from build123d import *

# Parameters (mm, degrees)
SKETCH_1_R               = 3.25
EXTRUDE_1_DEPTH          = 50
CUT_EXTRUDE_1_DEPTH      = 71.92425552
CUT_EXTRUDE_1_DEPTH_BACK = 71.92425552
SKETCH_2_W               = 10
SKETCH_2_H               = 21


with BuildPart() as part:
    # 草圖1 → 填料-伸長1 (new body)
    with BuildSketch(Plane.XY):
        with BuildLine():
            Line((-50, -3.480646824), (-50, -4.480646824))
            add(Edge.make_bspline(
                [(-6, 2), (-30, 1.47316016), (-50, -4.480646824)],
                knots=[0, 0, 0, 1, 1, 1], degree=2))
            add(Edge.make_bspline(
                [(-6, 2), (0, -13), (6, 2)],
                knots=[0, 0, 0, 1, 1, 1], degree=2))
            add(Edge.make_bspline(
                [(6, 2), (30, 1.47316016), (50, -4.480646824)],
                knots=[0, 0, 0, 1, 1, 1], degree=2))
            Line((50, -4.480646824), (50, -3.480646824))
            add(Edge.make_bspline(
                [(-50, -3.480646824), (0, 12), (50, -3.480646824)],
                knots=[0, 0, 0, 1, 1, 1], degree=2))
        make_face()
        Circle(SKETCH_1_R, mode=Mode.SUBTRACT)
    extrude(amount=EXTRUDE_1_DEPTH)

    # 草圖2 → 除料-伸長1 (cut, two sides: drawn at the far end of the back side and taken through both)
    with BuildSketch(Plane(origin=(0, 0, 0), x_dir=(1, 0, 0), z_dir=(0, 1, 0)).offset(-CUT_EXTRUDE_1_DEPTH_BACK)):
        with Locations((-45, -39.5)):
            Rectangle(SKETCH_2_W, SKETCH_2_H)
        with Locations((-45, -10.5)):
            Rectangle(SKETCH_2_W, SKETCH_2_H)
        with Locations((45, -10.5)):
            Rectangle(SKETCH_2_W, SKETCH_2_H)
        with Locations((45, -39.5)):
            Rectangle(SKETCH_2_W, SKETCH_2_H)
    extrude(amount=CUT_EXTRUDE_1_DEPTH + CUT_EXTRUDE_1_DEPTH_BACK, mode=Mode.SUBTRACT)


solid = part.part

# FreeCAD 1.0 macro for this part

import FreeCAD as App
import Part
import Sketcher

doc = App.newDocument("Part")
body = doc.addObject("PartDesign::Body", "Body")

# Sketch on XY plane
sketch1 = body.newObject("Sketcher::SketchObject", "Sketch")
sketch1.AttachmentSupport = (doc.getObject("XY_Plane"), [""])
sketch1.MapMode = "FlatFace"
sketch1.addGeometry(Part.LineSegment(App.Vector(-50, -3.480647, 0), App.Vector(-50, -4.480647, 0)), False)
sketch1.addGeometry(Part.BSplineCurve([App.Vector(-6, 2, 0), App.Vector(-30, 1.47316, 0), App.Vector(-50, -4.480647, 0)], [3, 3], [0, 1], False, 2, [1, 1, 1], False), False)
sketch1.addGeometry(Part.BSplineCurve([App.Vector(-6, 2, 0), App.Vector(0, -13, 0), App.Vector(6, 2, 0)], [3, 3], [0, 1], False, 2, [1, 1, 1], False), False)
sketch1.addGeometry(Part.BSplineCurve([App.Vector(6, 2, 0), App.Vector(30, 1.47316, 0), App.Vector(50, -4.480647, 0)], [3, 3], [0, 1], False, 2, [1, 1, 1], False), False)
sketch1.addGeometry(Part.LineSegment(App.Vector(50, -4.480647, 0), App.Vector(50, -3.480647, 0)), False)
sketch1.addGeometry(Part.BSplineCurve([App.Vector(-50, -3.480647, 0), App.Vector(0, 12, 0), App.Vector(50, -3.480647, 0)], [3, 3], [0, 1], False, 2, [1, 1, 1], False), False)
sketch1.addGeometry(Part.Circle(App.Vector(0, 0, 0), App.Vector(0, 0, 1), 3.25), False)
sketch1.addConstraint(Sketcher.Constraint("Block", 1))
sketch1.addConstraint(Sketcher.Constraint("Block", 2))
sketch1.addConstraint(Sketcher.Constraint("Block", 3))
sketch1.addConstraint(Sketcher.Constraint("Block", 5))
sketch1.addConstraint(Sketcher.Constraint("Coincident", 0, 2, 1, 2))
sketch1.addConstraint(Sketcher.Constraint("Coincident", 3, 2, 4, 1))
sketch1.addConstraint(Sketcher.Constraint("Coincident", 4, 2, 5, 2))
sketch1.addConstraint(Sketcher.Constraint("Coincident", 5, 1, 0, 1))
sketch1.addConstraint(Sketcher.Constraint("Coincident", 6, 3, -1, 1))
sketch1.addConstraint(Sketcher.Constraint("Diameter", 6, 6.5))
pad1 = body.newObject("PartDesign::Pad", "Pad")
pad1.Profile = sketch1
pad1.Length = 50

# Sketch on XZ plane
sketch2 = body.newObject("Sketcher::SketchObject", "Sketch001")
sketch2.AttachmentSupport = (doc.getObject("XZ_Plane"), [""])
sketch2.MapMode = "FlatFace"
sketch2.addGeometry(Part.LineSegment(App.Vector(-50, 29, 0), App.Vector(-50, 50, 0)), False)
sketch2.addGeometry(Part.LineSegment(App.Vector(-50, 50, 0), App.Vector(-40, 50, 0)), False)
sketch2.addGeometry(Part.LineSegment(App.Vector(-40, 50, 0), App.Vector(-40, 29, 0)), False)
sketch2.addGeometry(Part.LineSegment(App.Vector(-40, 29, 0), App.Vector(-50, 29, 0)), False)
sketch2.addGeometry(Part.LineSegment(App.Vector(-50, 0, 0), App.Vector(-50, 21, 0)), False)
sketch2.addGeometry(Part.LineSegment(App.Vector(-50, 21, 0), App.Vector(-40, 21, 0)), False)
sketch2.addGeometry(Part.LineSegment(App.Vector(-40, 21, 0), App.Vector(-40, 0, 0)), False)
sketch2.addGeometry(Part.LineSegment(App.Vector(-40, 0, 0), App.Vector(-50, 0, 0)), False)
sketch2.addGeometry(Part.LineSegment(App.Vector(40, 0, 0), App.Vector(40, 21, 0)), False)
sketch2.addGeometry(Part.LineSegment(App.Vector(40, 21, 0), App.Vector(50, 21, 0)), False)
sketch2.addGeometry(Part.LineSegment(App.Vector(50, 21, 0), App.Vector(50, 0, 0)), False)
sketch2.addGeometry(Part.LineSegment(App.Vector(50, 0, 0), App.Vector(40, 0, 0)), False)
sketch2.addGeometry(Part.LineSegment(App.Vector(40, 29, 0), App.Vector(40, 50, 0)), False)
sketch2.addGeometry(Part.LineSegment(App.Vector(40, 50, 0), App.Vector(50, 50, 0)), False)
sketch2.addGeometry(Part.LineSegment(App.Vector(50, 50, 0), App.Vector(50, 29, 0)), False)
sketch2.addGeometry(Part.LineSegment(App.Vector(50, 29, 0), App.Vector(40, 29, 0)), False)
sketch2.addConstraint(Sketcher.Constraint("Coincident", 0, 2, 1, 1))
sketch2.addConstraint(Sketcher.Constraint("Coincident", 1, 2, 2, 1))
sketch2.addConstraint(Sketcher.Constraint("Coincident", 2, 2, 3, 1))
sketch2.addConstraint(Sketcher.Constraint("Coincident", 3, 2, 0, 1))
sketch2.addConstraint(Sketcher.Constraint("Coincident", 4, 2, 5, 1))
sketch2.addConstraint(Sketcher.Constraint("Coincident", 5, 2, 6, 1))
sketch2.addConstraint(Sketcher.Constraint("Coincident", 6, 2, 7, 1))
sketch2.addConstraint(Sketcher.Constraint("Coincident", 7, 2, 4, 1))
sketch2.addConstraint(Sketcher.Constraint("Coincident", 8, 2, 9, 1))
sketch2.addConstraint(Sketcher.Constraint("Coincident", 9, 2, 10, 1))
sketch2.addConstraint(Sketcher.Constraint("Coincident", 10, 2, 11, 1))
sketch2.addConstraint(Sketcher.Constraint("Coincident", 11, 2, 8, 1))
sketch2.addConstraint(Sketcher.Constraint("Coincident", 12, 2, 13, 1))
sketch2.addConstraint(Sketcher.Constraint("Coincident", 13, 2, 14, 1))
sketch2.addConstraint(Sketcher.Constraint("Coincident", 14, 2, 15, 1))
sketch2.addConstraint(Sketcher.Constraint("Coincident", 15, 2, 12, 1))
sketch2.addConstraint(Sketcher.Constraint("Vertical", 0))
sketch2.addConstraint(Sketcher.Constraint("Horizontal", 1))
sketch2.addConstraint(Sketcher.Constraint("Vertical", 2))
sketch2.addConstraint(Sketcher.Constraint("Horizontal", 3))
sketch2.addConstraint(Sketcher.Constraint("Vertical", 4))
sketch2.addConstraint(Sketcher.Constraint("Horizontal", 5))
sketch2.addConstraint(Sketcher.Constraint("Vertical", 6))
sketch2.addConstraint(Sketcher.Constraint("Horizontal", 7))
sketch2.addConstraint(Sketcher.Constraint("Vertical", 8))
sketch2.addConstraint(Sketcher.Constraint("Horizontal", 9))
sketch2.addConstraint(Sketcher.Constraint("Vertical", 10))
sketch2.addConstraint(Sketcher.Constraint("Horizontal", 11))
sketch2.addConstraint(Sketcher.Constraint("Vertical", 12))
sketch2.addConstraint(Sketcher.Constraint("Horizontal", 13))
sketch2.addConstraint(Sketcher.Constraint("Vertical", 14))
sketch2.addConstraint(Sketcher.Constraint("Horizontal", 15))
sketch2.addConstraint(Sketcher.Constraint("Symmetric", 7, 2, 10, 2, -1, 1))
sketch2.addConstraint(Sketcher.Constraint("Symmetric", 5, 2, 8, 2, -2))
sketch2.addConstraint(Sketcher.Constraint("Symmetric", 1, 2, 12, 2, -2))
sketch2.addConstraint(Sketcher.Constraint("Symmetric", 3, 2, 14, 2, -2))
sketch2.addConstraint(Sketcher.Constraint("PointOnObject", 6, 2, -1))
sketch2.addConstraint(Sketcher.Constraint("Vertical", 3, 2, 4, 2))
sketch2.addConstraint(Sketcher.Constraint("Vertical", 2, 2, 5, 2))
sketch2.addConstraint(Sketcher.Constraint("Equal", 2, 4))
sketch2.addConstraint(Sketcher.Constraint("DistanceX", 1, 1, 1, 2, 10.0))
sketch2.addConstraint(Sketcher.Constraint("DistanceY", 0, 1, 0, 2, 21.0))
sketch2.addConstraint(Sketcher.Constraint("DistanceX", 0, 2, -1, 1, 50.0))
sketch2.addConstraint(Sketcher.Constraint("DistanceY", -1, 1, 0, 2, 50.0))
pocket1 = body.newObject("PartDesign::Pocket", "Pocket")
pocket1.Profile = sketch2
pocket1.Type = "ThroughAll"
pocket1.Midplane = True

doc.recompute()
